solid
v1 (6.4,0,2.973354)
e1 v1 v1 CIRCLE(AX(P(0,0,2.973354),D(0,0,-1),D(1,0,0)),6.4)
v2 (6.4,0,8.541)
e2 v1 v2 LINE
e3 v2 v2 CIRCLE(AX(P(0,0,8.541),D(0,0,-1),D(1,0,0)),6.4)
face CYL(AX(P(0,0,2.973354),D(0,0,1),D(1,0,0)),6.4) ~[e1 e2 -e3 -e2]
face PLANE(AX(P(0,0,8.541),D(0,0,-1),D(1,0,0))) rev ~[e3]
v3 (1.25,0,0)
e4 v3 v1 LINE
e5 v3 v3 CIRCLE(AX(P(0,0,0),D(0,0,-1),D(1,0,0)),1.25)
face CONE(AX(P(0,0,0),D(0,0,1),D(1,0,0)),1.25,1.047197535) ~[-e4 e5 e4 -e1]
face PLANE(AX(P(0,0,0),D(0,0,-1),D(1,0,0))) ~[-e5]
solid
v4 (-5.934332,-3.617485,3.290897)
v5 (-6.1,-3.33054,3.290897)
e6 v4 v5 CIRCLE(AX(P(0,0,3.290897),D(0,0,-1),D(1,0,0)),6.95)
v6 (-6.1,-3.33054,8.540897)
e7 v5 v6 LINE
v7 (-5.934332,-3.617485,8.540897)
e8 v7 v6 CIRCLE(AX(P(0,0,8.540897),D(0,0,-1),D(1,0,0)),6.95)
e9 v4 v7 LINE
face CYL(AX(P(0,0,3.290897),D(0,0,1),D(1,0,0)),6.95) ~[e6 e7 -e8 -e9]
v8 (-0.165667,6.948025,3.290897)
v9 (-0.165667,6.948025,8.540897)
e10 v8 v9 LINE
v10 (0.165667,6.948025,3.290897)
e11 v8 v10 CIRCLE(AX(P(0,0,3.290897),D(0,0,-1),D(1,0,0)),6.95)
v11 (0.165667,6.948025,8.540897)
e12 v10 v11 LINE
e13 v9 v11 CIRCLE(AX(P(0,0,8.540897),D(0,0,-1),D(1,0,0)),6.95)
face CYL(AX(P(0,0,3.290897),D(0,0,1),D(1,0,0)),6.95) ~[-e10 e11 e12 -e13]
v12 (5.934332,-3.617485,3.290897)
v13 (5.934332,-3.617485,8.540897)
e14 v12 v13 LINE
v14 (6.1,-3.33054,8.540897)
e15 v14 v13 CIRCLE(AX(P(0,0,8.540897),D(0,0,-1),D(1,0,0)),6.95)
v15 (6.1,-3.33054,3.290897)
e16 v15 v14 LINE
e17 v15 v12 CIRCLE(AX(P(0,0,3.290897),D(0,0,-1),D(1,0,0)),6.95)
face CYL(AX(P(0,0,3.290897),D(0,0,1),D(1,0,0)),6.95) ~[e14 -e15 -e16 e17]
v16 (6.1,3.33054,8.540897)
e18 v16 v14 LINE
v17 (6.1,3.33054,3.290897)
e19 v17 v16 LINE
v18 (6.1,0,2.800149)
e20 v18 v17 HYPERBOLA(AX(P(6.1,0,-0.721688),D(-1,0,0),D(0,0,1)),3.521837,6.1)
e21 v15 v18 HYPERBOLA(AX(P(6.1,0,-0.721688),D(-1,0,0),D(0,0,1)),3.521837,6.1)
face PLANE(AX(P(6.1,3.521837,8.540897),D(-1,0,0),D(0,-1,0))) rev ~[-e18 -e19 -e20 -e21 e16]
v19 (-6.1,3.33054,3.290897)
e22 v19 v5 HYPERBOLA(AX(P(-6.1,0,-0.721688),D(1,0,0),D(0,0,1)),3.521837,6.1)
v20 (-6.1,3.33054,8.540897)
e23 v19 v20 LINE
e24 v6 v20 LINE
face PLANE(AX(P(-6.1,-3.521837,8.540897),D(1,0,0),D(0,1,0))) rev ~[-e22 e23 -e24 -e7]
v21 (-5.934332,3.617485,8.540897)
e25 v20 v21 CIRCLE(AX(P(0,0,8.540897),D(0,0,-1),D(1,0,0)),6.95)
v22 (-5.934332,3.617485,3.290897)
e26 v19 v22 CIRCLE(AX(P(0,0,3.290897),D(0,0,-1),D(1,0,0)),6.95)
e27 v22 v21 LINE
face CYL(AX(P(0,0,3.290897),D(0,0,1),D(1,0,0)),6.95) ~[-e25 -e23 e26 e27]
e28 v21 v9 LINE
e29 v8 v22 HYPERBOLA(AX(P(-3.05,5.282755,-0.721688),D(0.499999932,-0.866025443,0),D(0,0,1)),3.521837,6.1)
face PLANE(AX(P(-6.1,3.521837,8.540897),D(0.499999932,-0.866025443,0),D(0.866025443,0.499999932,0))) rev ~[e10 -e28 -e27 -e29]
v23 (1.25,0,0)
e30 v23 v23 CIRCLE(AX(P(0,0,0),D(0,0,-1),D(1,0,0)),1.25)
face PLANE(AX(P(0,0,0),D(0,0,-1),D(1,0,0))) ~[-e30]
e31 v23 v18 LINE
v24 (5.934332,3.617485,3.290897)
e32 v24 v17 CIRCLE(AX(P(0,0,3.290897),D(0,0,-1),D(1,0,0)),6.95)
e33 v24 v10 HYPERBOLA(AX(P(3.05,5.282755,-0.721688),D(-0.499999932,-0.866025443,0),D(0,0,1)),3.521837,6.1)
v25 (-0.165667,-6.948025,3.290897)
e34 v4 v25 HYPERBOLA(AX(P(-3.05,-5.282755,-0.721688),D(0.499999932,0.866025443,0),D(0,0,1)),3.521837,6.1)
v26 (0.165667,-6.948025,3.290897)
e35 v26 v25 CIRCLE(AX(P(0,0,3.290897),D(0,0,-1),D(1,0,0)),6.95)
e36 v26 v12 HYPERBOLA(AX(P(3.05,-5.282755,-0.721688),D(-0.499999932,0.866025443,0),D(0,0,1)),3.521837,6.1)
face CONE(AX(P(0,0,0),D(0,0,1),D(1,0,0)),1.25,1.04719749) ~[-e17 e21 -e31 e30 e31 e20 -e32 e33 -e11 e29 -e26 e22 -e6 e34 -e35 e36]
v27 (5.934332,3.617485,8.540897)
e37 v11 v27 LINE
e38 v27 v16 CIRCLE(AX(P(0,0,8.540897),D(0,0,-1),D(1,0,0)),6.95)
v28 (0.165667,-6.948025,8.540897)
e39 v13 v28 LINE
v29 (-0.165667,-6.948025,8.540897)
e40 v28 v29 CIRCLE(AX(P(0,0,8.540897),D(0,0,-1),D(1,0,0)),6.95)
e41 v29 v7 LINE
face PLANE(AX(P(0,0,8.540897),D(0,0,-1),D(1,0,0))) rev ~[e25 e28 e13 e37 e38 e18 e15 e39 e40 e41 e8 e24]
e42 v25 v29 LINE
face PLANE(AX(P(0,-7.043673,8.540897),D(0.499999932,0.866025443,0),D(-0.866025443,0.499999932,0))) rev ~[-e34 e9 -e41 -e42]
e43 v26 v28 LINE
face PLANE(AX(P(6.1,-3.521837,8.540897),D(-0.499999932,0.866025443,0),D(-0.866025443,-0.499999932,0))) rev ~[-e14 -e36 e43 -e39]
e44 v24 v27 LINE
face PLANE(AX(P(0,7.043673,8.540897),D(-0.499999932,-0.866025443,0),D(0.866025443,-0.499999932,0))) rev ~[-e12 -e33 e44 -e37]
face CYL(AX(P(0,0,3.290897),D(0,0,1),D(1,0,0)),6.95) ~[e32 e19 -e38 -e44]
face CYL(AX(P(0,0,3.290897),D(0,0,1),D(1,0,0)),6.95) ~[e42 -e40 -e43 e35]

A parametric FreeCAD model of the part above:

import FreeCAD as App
import Part
import Sketcher

V = App.Vector
Q = App.Units.Quantity


def add_polygon(sketch, points):
    """Adds a closed chain of lines whose ends are joined by coincident constraints."""
    first, n = sketch.GeometryCount, len(points)
    for a, b in zip(points, points[1:] + points[:1]):
        sketch.addGeometry(Part.LineSegment(App.Vector(*a, 0), App.Vector(*b, 0)), False)
    for i in range(n):
        sketch.addConstraint(Sketcher.Constraint("Coincident", first + i, 2, first + (i + 1) % n, 1))

doc = App.newDocument("Part")
body = doc.addObject("PartDesign::Body", "Body")

# Sketch on XZ plane
sketch1 = body.newObject("Sketcher::SketchObject", "Sketch")
sketch1.AttachmentSupport = (doc.getObject("XZ_Plane"), [""])
sketch1.MapMode = "FlatFace"
add_polygon(sketch1, [(0, 8.540897), (0, 0), (1.25, 0), (6.95, 3.290897), (6.95, 8.540897)])  # lines 0-4
sketch1.addConstraint(Sketcher.Constraint("Vertical", 0))
sketch1.addConstraint(Sketcher.Constraint("Horizontal", 1))
sketch1.addConstraint(Sketcher.Constraint("Vertical", 3))
sketch1.addConstraint(Sketcher.Constraint("Horizontal", 4))
sketch1.addConstraint(Sketcher.Constraint("Coincident", 0, 2, -1, 1))
sketch1.addConstraint(Sketcher.Constraint("Angle", 2, Q("30.000004 deg")))
sketch1.addConstraint(Sketcher.Constraint("DistanceX", 1, 1, 1, 2, 1.25))
sketch1.addConstraint(Sketcher.Constraint("DistanceX", 4, 2, 4, 1, 6.95))
sketch1.addConstraint(Sketcher.Constraint("DistanceY", 3, 1, 3, 2, 5.25))
revolution = body.newObject("PartDesign::Revolution", "Revolution")
revolution.Profile = sketch1
revolution.ReferenceAxis = (sketch1, ["V_Axis"])
revolution.Angle = 360

# Sketch on XY plane
sketch2 = body.newObject("Sketcher::SketchObject", "Sketch001")
sketch2.AttachmentSupport = (doc.getObject("XY_Plane"), [""])
sketch2.MapMode = "FlatFace"
sketch2.AttachmentOffset = App.Placement(V(0, 0, 8.540897), App.Rotation())
sketch2.addGeometry(Part.Circle(V(0, 0, 0), V(0, 0, 1), 10.505318), False)  # 0
add_polygon(sketch2, [(-6.1, 3.521837), (0, 7.043673), (6.1, 3.521837), (6.1, -3.521837), (0, -7.043673), (-6.1, -3.521837)])  # lines 1-6
sketch2.addConstraint(Sketcher.Constraint("Vertical", 3))
sketch2.addConstraint(Sketcher.Constraint("Vertical", 6))
sketch2.addConstraint(Sketcher.Constraint("Coincident", 0, 3, -1, 1))
sketch2.addConstraint(Sketcher.Constraint("Symmetric", 1, 2, 4, 2, -1, 1))
sketch2.addConstraint(Sketcher.Constraint("Symmetric", 2, 2, 5, 2, -1, 1))
sketch2.addConstraint(Sketcher.Constraint("PointOnObject", 1, 2, -2))
sketch2.addConstraint(Sketcher.Constraint("Parallel", 1, 4))
sketch2.addConstraint(Sketcher.Constraint("Horizontal", 3, 2, 5, 2))
sketch2.addConstraint(Sketcher.Constraint("Angle", 1, Q("29.999995 deg")))
sketch2.addConstraint(Sketcher.Constraint("DistanceX", -1, 1, 2, 2, 6.1))
sketch2.addConstraint(Sketcher.Constraint("Diameter", 0, 21.010636))
sketch2.addConstraint(Sketcher.Constraint("DistanceY", 3, 2, 3, 1, 7.043674))
pocket1 = body.newObject("PartDesign::Pocket", "Pocket")
pocket1.Profile = sketch2
pocket1.Length = 25
body2 = doc.addObject("PartDesign::Body", "Body001")

# Sketch on XZ plane
sketch3 = body2.newObject("Sketcher::SketchObject", "Sketch002")
sketch3.AttachmentSupport = (doc.getObject("XZ_Plane001"), [""])
sketch3.MapMode = "FlatFace"
add_polygon(sketch3, [(0, 8.541), (0, 0), (1.25, 0), (6.4, 2.973354), (6.4, 8.541)])  # lines 0-4
sketch3.addConstraint(Sketcher.Constraint("Vertical", 0))
sketch3.addConstraint(Sketcher.Constraint("Horizontal", 1))
sketch3.addConstraint(Sketcher.Constraint("Vertical", 3))
sketch3.addConstraint(Sketcher.Constraint("Horizontal", 4))
sketch3.addConstraint(Sketcher.Constraint("Coincident", 0, 2, -1, 1))
sketch3.addConstraint(Sketcher.Constraint("Angle", 2, Q("30.000001 deg")))
sketch3.addConstraint(Sketcher.Constraint("DistanceX", 4, 2, 4, 1, 6.4))
sketch3.addConstraint(Sketcher.Constraint("DistanceX", 1, 1, 1, 2, 1.25))
sketch3.addConstraint(Sketcher.Constraint("DistanceY", 0, 2, 0, 1, 8.541))
revolution2 = body2.newObject("PartDesign::Revolution", "Revolution001")
revolution2.Profile = sketch3
revolution2.ReferenceAxis = (sketch3, ["V_Axis"])
revolution2.Angle = 360

doc.recompute()
